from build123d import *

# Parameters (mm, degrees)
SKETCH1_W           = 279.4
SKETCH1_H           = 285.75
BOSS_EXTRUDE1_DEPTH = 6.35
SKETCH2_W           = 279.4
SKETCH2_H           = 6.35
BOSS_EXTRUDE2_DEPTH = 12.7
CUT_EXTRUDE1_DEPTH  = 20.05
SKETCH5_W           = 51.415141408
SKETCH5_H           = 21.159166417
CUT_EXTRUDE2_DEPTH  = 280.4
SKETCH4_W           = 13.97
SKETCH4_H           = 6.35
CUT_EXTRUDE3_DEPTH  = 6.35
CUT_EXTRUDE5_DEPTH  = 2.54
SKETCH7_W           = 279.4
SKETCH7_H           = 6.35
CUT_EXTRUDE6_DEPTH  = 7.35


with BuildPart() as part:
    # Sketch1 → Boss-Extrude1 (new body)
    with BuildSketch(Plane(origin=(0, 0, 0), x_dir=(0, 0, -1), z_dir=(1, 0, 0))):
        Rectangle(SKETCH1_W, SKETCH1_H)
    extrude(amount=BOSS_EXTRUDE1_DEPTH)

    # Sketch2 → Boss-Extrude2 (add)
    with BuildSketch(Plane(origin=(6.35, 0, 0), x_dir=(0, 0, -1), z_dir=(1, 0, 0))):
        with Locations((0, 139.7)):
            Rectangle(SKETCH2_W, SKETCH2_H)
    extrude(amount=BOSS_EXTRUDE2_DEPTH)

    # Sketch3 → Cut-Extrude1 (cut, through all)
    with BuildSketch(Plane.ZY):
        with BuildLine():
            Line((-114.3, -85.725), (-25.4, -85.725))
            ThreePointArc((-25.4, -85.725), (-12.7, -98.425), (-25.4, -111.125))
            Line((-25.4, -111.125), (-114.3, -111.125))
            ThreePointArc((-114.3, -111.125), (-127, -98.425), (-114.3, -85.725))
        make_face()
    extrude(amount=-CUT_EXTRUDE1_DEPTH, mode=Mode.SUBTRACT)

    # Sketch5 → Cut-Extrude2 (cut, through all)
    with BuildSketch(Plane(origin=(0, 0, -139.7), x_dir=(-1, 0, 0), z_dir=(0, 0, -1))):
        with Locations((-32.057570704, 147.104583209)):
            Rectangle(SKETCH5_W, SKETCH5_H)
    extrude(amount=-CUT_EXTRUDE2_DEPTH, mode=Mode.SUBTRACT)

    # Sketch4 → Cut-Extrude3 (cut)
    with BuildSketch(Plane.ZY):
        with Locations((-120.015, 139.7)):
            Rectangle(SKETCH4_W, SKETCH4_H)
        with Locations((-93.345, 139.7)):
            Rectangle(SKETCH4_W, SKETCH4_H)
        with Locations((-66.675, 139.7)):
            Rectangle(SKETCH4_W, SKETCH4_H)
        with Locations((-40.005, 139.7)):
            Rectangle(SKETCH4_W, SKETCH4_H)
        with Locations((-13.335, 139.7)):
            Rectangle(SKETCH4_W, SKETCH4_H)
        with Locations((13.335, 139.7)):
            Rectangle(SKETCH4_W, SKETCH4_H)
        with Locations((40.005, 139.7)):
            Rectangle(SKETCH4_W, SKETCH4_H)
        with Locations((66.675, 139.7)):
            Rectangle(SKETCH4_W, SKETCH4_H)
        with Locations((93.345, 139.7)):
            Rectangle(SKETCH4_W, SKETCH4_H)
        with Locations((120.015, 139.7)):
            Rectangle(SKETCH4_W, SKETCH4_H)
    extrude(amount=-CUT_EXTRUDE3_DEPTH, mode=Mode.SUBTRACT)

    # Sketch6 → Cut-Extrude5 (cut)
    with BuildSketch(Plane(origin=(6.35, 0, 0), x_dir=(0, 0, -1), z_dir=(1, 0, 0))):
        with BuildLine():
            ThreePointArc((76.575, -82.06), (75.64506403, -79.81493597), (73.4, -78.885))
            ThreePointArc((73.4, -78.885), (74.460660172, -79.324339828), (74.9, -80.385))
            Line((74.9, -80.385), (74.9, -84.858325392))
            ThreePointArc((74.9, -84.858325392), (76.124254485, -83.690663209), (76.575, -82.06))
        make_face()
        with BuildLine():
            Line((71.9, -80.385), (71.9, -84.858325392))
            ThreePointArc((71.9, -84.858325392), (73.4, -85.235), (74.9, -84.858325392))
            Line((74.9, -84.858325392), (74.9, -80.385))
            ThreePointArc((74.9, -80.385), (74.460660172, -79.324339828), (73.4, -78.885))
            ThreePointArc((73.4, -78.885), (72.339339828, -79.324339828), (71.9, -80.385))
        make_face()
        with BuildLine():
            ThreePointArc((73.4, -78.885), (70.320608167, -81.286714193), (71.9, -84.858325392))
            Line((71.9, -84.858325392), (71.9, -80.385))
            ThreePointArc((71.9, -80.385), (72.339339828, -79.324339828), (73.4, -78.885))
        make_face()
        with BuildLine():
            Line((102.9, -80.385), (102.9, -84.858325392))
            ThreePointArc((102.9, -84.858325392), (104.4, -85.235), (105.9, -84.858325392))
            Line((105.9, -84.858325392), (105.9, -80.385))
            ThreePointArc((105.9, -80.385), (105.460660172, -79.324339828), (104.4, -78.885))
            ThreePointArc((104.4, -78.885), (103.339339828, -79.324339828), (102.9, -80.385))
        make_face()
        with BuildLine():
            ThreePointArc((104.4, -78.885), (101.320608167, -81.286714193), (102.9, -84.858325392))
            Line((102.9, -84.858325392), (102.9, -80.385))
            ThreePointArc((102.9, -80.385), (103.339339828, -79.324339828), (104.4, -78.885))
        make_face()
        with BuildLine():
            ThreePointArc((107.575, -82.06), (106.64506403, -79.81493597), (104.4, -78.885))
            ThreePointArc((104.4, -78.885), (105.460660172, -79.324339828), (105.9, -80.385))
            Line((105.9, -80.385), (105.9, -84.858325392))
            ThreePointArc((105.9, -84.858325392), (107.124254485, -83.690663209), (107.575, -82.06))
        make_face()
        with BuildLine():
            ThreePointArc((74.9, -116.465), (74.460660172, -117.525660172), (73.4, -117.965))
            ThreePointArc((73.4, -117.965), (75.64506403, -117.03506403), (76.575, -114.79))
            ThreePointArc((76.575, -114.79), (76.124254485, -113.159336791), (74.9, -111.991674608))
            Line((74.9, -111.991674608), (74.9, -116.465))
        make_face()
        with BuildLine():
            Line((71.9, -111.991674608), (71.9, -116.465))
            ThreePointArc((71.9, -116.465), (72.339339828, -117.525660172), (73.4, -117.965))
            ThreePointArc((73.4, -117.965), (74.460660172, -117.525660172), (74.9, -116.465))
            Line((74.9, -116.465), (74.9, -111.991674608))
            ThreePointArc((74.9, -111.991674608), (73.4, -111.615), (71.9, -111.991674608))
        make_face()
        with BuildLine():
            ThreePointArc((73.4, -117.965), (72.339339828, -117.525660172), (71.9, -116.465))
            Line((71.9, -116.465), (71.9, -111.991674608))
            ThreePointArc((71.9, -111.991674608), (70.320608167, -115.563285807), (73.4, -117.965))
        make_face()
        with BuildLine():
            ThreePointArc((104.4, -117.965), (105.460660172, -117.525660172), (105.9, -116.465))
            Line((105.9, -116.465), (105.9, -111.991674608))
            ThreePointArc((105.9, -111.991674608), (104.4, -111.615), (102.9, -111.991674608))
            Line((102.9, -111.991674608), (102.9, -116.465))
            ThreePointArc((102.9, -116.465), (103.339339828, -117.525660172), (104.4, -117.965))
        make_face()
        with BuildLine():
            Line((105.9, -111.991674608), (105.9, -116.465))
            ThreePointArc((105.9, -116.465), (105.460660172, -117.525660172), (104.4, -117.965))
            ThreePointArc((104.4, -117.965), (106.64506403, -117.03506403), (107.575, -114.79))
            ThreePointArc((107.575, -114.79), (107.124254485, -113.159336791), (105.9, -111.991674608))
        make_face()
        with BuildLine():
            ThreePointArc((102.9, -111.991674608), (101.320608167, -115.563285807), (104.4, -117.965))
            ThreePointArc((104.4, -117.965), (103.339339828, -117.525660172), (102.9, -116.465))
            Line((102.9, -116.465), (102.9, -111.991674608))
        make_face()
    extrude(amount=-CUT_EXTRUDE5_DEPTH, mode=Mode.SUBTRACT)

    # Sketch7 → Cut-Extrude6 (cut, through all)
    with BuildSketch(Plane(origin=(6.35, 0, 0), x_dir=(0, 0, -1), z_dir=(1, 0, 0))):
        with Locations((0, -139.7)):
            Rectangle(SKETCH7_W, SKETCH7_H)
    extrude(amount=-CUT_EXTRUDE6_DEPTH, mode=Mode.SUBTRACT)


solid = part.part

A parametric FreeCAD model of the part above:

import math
import FreeCAD as App
import Part
import Sketcher

V = App.Vector
Q = App.Units.Quantity


def add_polygon(sketch, points):
    """Adds a closed chain of lines whose ends are joined by coincident constraints."""
    first, n = sketch.GeometryCount, len(points)
    for a, b in zip(points, points[1:] + points[:1]):
        sketch.addGeometry(Part.LineSegment(App.Vector(*a, 0), App.Vector(*b, 0)), False)
    for i in range(n):
        sketch.addConstraint(Sketcher.Constraint("Coincident", first + i, 2, first + (i + 1) % n, 1))

doc = App.newDocument("Part")
params = doc.addObject("Spreadsheet::Sheet", "Params")
for row, (alias, value) in enumerate([
    ("sketch1_height", "11 in"),
    ("sketch1_width", "11.25 in"),
    ("pad1_length", "0.25 in"),
    ("sketch2_height", "11 in"),
    ("sketch2_width", "0.25 in"),
    ("pad2_length", "0.5 in"),
    ("sketch3_radius", "0.5 in"),
    ("sketch3_height", "3.5 in"),
    ("sketch5_width", "0.25 in"),
    ("sketch5_height", "0.55 in"),
    ("pocket3_length", "0.25 in"),
    ("sketch6_radius", "0.125 in"),
    ("pocket4_length", "0.1 in"),
    ("sketch7_height", "11 in"),
    ("sketch7_width", "0.25 in"),
], start=1):
    params.set(f"A{row}", alias)
    params.set(f"B{row}", "=" + value)
    params.setAlias(f"B{row}", alias)

body = doc.addObject("PartDesign::Body", "Body")

sketch1 = doc.addObject("Sketcher::SketchObject", "Sketch")
body.addObject(sketch1)
sketch1.AttachmentSupport = (doc.YZ_Plane, [""])
sketch1.MapMode = "FlatFace"
add_polygon(sketch1, [(142.875, 139.7), (-142.875, 139.7), (-142.875, -139.7), (142.875, -139.7)])
sketch1.addConstraint(Sketcher.Constraint("Horizontal", 0))
sketch1.addConstraint(Sketcher.Constraint("Vertical", 1))
sketch1.addConstraint(Sketcher.Constraint("Horizontal", 2))
sketch1.addConstraint(Sketcher.Constraint("Vertical", 3))
sketch1.addConstraint(Sketcher.Constraint("Symmetric", 0, 2, 2, 2, -1, 1))
sketch1.addConstraint(Sketcher.Constraint("DistanceY", 1, 2, 1, 1, Q("11 in")))
sketch1.addConstraint(Sketcher.Constraint("DistanceX", 0, 2, 0, 1, Q("11.25 in")))
sketch1.setExpression("Constraints[9]", "Params.sketch1_height")
sketch1.setExpression("Constraints[10]", "Params.sketch1_width")
pad1 = doc.addObject("PartDesign::Pad", "Pad")
body.addObject(pad1)
pad1.Profile = sketch1
pad1.setExpression("Length", "Params.pad1_length")

sketch2 = doc.addObject("Sketcher::SketchObject", "Sketch001")
body.addObject(sketch2)
sketch2.AttachmentSupport = (doc.YZ_Plane, [""])
sketch2.MapMode = "FlatFace"
sketch2.AttachmentOffset = App.Placement(V(0, 0, 0.25 * 25.4), App.Rotation())
add_polygon(sketch2, [(142.875, 139.7), (136.525, 139.7), (136.525, -139.7), (142.875, -139.7)])
sketch2.addConstraint(Sketcher.Constraint("Horizontal", 0))
sketch2.addConstraint(Sketcher.Constraint("Vertical", 1))
sketch2.addConstraint(Sketcher.Constraint("Horizontal", 2))
sketch2.addConstraint(Sketcher.Constraint("Vertical", 3))
sketch2.addConstraint(Sketcher.Constraint("DistanceY", 1, 2, 1, 1, Q("11 in")))
sketch2.addConstraint(Sketcher.Constraint("DistanceX", 0, 2, 0, 1, Q("0.25 in")))
sketch2.addConstraint(Sketcher.Constraint("DistanceY", -1, 1, 0, 2, Q("5.5 in")))
sketch2.addConstraint(Sketcher.Constraint("DistanceX", -1, 1, 0, 2, Q("5.375 in")))
sketch2.setExpression("Constraints[8]", "Params.sketch2_height")
sketch2.setExpression("Constraints[9]", "Params.sketch2_width")
pad2 = doc.addObject("PartDesign::Pad", "Pad001")
body.addObject(pad2)
pad2.Profile = sketch2
pad2.setExpression("Length", "Params.pad2_length")

sketch3 = doc.addObject("Sketcher::SketchObject", "Sketch002")
body.addObject(sketch3)
sketch3.AttachmentSupport = (doc.YZ_Plane, [""])
sketch3.MapMode = "FlatFace"
sketch3.addGeometry(Part.LineSegment(V(-85.725, -25.4, 0), V(-85.725, -114.3, 0)), False)
sketch3.addGeometry(Part.ArcOfCircle(Part.Circle(V(-98.425, -114.3, 0), V(0, 0, 1), 12.7), math.radians(180), math.radians(360)), False)
sketch3.addGeometry(Part.LineSegment(V(-111.125, -114.3, 0), V(-111.125, -25.4, 0)), False)
sketch3.addGeometry(Part.ArcOfCircle(Part.Circle(V(-98.425, -25.4, 0), V(0, 0, 1), 12.7), math.radians(0), math.radians(180)), False)
sketch3.addConstraint(Sketcher.Constraint("Tangent", 0, 2, 1, 2))
sketch3.addConstraint(Sketcher.Constraint("Tangent", 1, 1, 2, 1))
sketch3.addConstraint(Sketcher.Constraint("Tangent", 2, 2, 3, 2))
sketch3.addConstraint(Sketcher.Constraint("Tangent", 3, 1, 0, 1))
sketch3.addConstraint(Sketcher.Constraint("Vertical", 0))
sketch3.addConstraint(Sketcher.Constraint("Vertical", 2))
sketch3.addConstraint(Sketcher.Constraint("Radius", 1, Q("0.5 in")))
sketch3.addConstraint(Sketcher.Constraint("DistanceY", 0, 2, 0, 1, Q("3.5 in")))
sketch3.addConstraint(Sketcher.Constraint("DistanceY", 3, 3, -1, 1, Q("1 in")))
sketch3.addConstraint(Sketcher.Constraint("DistanceX", 1, 3, -1, 1, Q("3.875 in")))
sketch3.setExpression("Constraints[6]", "Params.sketch3_radius")
sketch3.setExpression("Constraints[7]", "Params.sketch3_height")
pocket1 = doc.addObject("PartDesign::Pocket", "Pocket")
body.addObject(pocket1)
pocket1.Profile = sketch3
pocket1.Type = "ThroughAll"
pocket1.Reversed = True

sketch4 = doc.addObject("Sketcher::SketchObject", "Sketch003")
body.addObject(sketch4)
sketch4.AttachmentSupport = (doc.XY_Plane, [""])
sketch4.MapMode = "FlatFace"
sketch4.AttachmentOffset = App.Placement(V(0, 0, -5.5 * 25.4), App.Rotation())
add_polygon(sketch4, [(57.765141, 157.684166), (57.765141, 136.525), (6.35, 136.525), (6.35, 157.684166)])
sketch4.addConstraint(Sketcher.Constraint("Vertical", 0))
sketch4.addConstraint(Sketcher.Constraint("Horizontal", 1))
sketch4.addConstraint(Sketcher.Constraint("Vertical", 2))
sketch4.addConstraint(Sketcher.Constraint("Horizontal", 3))
sketch4.addConstraint(Sketcher.Constraint("DistanceX", -1, 1, 1, 2, Q("0.25 in")))
sketch4.addConstraint(Sketcher.Constraint("DistanceY", -1, 1, 0, 2, Q("5.375 in")))
sketch4.addConstraint(Sketcher.Constraint("DistanceX", 1, 2, 1, 1, 51.415141))
sketch4.addConstraint(Sketcher.Constraint("DistanceY", 0, 2, 0, 1, 21.159166))
pocket2 = doc.addObject("PartDesign::Pocket", "Pocket001")
body.addObject(pocket2)
pocket2.Profile = sketch4
pocket2.Type = "ThroughAll"
pocket2.Reversed = True

sketch5 = doc.addObject("Sketcher::SketchObject", "Sketch004")
body.addObject(sketch5)
sketch5.AttachmentSupport = (doc.YZ_Plane, [""])
sketch5.MapMode = "FlatFace"
add_polygon(sketch5, [(142.875, -127), (136.525, -127), (136.525, -113.03), (142.875, -113.03)])
add_polygon(sketch5, [(142.875, -100.33), (136.525, -100.33), (136.525, -86.36), (142.875, -86.36)])
add_polygon(sketch5, [(142.875, -73.66), (136.525, -73.66), (136.525, -59.69), (142.875, -59.69)])
add_polygon(sketch5, [(142.875, -46.99), (136.525, -46.99), (136.525, -33.02), (142.875, -33.02)])
add_polygon(sketch5, [(142.875, -20.32), (136.525, -20.32), (136.525, -6.35), (142.875, -6.35)])
add_polygon(sketch5, [(142.875, 6.35), (136.525, 6.35), (136.525, 20.32), (142.875, 20.32)])
add_polygon(sketch5, [(142.875, 33.02), (136.525, 33.02), (136.525, 46.99), (142.875, 46.99)])
add_polygon(sketch5, [(142.875, 59.69), (136.525, 59.69), (136.525, 73.66), (142.875, 73.66)])
add_polygon(sketch5, [(142.875, 86.36), (136.525, 86.36), (136.525, 100.33), (142.875, 100.33)])
add_polygon(sketch5, [(142.875, 113.03), (136.525, 113.03), (136.525, 127), (142.875, 127)])
sketch5.addConstraint(Sketcher.Constraint("Horizontal", 0))
sketch5.addConstraint(Sketcher.Constraint("Vertical", 1))
sketch5.addConstraint(Sketcher.Constraint("Horizontal", 2))
sketch5.addConstraint(Sketcher.Constraint("Vertical", 3))
sketch5.addConstraint(Sketcher.Constraint("Horizontal", 4))
sketch5.addConstraint(Sketcher.Constraint("Vertical", 5))
sketch5.addConstraint(Sketcher.Constraint("Horizontal", 6))
sketch5.addConstraint(Sketcher.Constraint("Vertical", 7))
sketch5.addConstraint(Sketcher.Constraint("Horizontal", 8))
sketch5.addConstraint(Sketcher.Constraint("Vertical", 9))
sketch5.addConstraint(Sketcher.Constraint("Horizontal", 10))
sketch5.addConstraint(Sketcher.Constraint("Vertical", 11))
sketch5.addConstraint(Sketcher.Constraint("Horizontal", 12))
sketch5.addConstraint(Sketcher.Constraint("Vertical", 13))
sketch5.addConstraint(Sketcher.Constraint("Horizontal", 14))
sketch5.addConstraint(Sketcher.Constraint("Vertical", 15))
sketch5.addConstraint(Sketcher.Constraint("Horizontal", 16))
sketch5.addConstraint(Sketcher.Constraint("Vertical", 17))
sketch5.addConstraint(Sketcher.Constraint("Horizontal", 18))
sketch5.addConstraint(Sketcher.Constraint("Vertical", 19))
sketch5.addConstraint(Sketcher.Constraint("Horizontal", 20))
sketch5.addConstraint(Sketcher.Constraint("Vertical", 21))
sketch5.addConstraint(Sketcher.Constraint("Horizontal", 22))
sketch5.addConstraint(Sketcher.Constraint("Vertical", 23))
sketch5.addConstraint(Sketcher.Constraint("Horizontal", 24))
sketch5.addConstraint(Sketcher.Constraint("Vertical", 25))
sketch5.addConstraint(Sketcher.Constraint("Horizontal", 26))
sketch5.addConstraint(Sketcher.Constraint("Vertical", 27))
sketch5.addConstraint(Sketcher.Constraint("Horizontal", 28))
sketch5.addConstraint(Sketcher.Constraint("Vertical", 29))
sketch5.addConstraint(Sketcher.Constraint("Horizontal", 30))
sketch5.addConstraint(Sketcher.Constraint("Vertical", 31))
sketch5.addConstraint(Sketcher.Constraint("Horizontal", 32))
sketch5.addConstraint(Sketcher.Constraint("Vertical", 33))
sketch5.addConstraint(Sketcher.Constraint("Horizontal", 34))
sketch5.addConstraint(Sketcher.Constraint("Vertical", 35))
sketch5.addConstraint(Sketcher.Constraint("Horizontal", 36))
sketch5.addConstraint(Sketcher.Constraint("Vertical", 37))
sketch5.addConstraint(Sketcher.Constraint("Horizontal", 38))
sketch5.addConstraint(Sketcher.Constraint("Vertical", 39))
sketch5.addConstraint(Sketcher.Constraint("Symmetric", 17, 2, 20, 2, -1))
sketch5.addConstraint(Sketcher.Constraint("Symmetric", 19, 2, 22, 2, -1))
sketch5.addConstraint(Sketcher.Constraint("Symmetric", 13, 2, 24, 2, -1))
sketch5.addConstraint(Sketcher.Constraint("Symmetric", 15, 2, 26, 2, -1))
sketch5.addConstraint(Sketcher.Constraint("Symmetric", 9, 2, 28, 2, -1))
sketch5.addConstraint(Sketcher.Constraint("Symmetric", 11, 2, 30, 2, -1))
sketch5.addConstraint(Sketcher.Constraint("Symmetric", 5, 2, 32, 2, -1))
sketch5.addConstraint(Sketcher.Constraint("Symmetric", 7, 2, 34, 2, -1))
sketch5.addConstraint(Sketcher.Constraint("Symmetric", 1, 2, 36, 2, -1))
sketch5.addConstraint(Sketcher.Constraint("Symmetric", 3, 2, 38, 2, -1))
sketch5.addConstraint(Sketcher.Constraint("Vertical", 1, 2, 4, 2))
sketch5.addConstraint(Sketcher.Constraint("Vertical", 3, 2, 6, 2))
sketch5.addConstraint(Sketcher.Constraint("Vertical", 5, 2, 8, 2))
sketch5.addConstraint(Sketcher.Constraint("Vertical", 7, 2, 10, 2))
sketch5.addConstraint(Sketcher.Constraint("Vertical", 9, 2, 12, 2))
sketch5.addConstraint(Sketcher.Constraint("Vertical", 11, 2, 14, 2))
sketch5.addConstraint(Sketcher.Constraint("Vertical", 13, 2, 16, 2))
sketch5.addConstraint(Sketcher.Constraint("Vertical", 15, 2, 18, 2))
sketch5.addConstraint(Sketcher.Constraint("Equal", 3, 5))
sketch5.addConstraint(Sketcher.Constraint("Equal", 7, 9))
sketch5.addConstraint(Sketcher.Constraint("Equal", 11, 13))
sketch5.addConstraint(Sketcher.Constraint("Equal", 15, 17))
sketch5.addConstraint(Sketcher.Constraint("DistanceY", 0, 2, -1, 1, Q("5 in")))
sketch5.addConstraint(Sketcher.Constraint("DistanceX", 0, 2, 0, 1, Q("0.25 in")))
sketch5.addConstraint(Sketcher.Constraint("DistanceY", 1, 1, 1, 2, Q("0.55 in")))
sketch5.addConstraint(Sketcher.Constraint("DistanceY", 5, 2, -1, 1, Q("3.4 in")))
sketch5.addConstraint(Sketcher.Constraint("DistanceY", 8, 2, -1, 1, Q("2.9 in")))
sketch5.addConstraint(Sketcher.Constraint("DistanceY", 13, 2, -1, 1, Q("1.3 in")))
sketch5.addConstraint(Sketcher.Constraint("DistanceY", 16, 2, -1, 1, Q("0.8 in")))
sketch5.addConstraint(Sketcher.Constraint("DistanceX", -1, 1, 0, 2, Q("5.375 in")))
sketch5.setExpression("Constraints[103]", "Params.sketch5_width")
sketch5.setExpression("Constraints[104]", "Params.sketch5_height")
pocket3 = doc.addObject("PartDesign::Pocket", "Pocket002")
body.addObject(pocket3)
pocket3.Profile = sketch5
pocket3.setExpression("Length", "Params.pocket3_length")
pocket3.Reversed = True

sketch6 = doc.addObject("Sketcher::SketchObject", "Sketch005")
body.addObject(sketch6)
sketch6.AttachmentSupport = (doc.YZ_Plane, [""])
sketch6.MapMode = "FlatFace"
sketch6.AttachmentOffset = App.Placement(V(0, 0, 0.25 * 25.4), App.Rotation())
sketch6.addGeometry(Part.ArcOfCircle(Part.Circle(V(-82.06, -73.4, 0), V(0, 0, 1), 3.175), math.radians(-90), math.radians(0)), False)
sketch6.addGeometry(Part.ArcOfCircle(Part.Circle(V(-82.06, -73.4, 0), V(0, 0, 1), 3.175), math.radians(0), math.radians(151.807139)), False)
sketch6.addGeometry(Part.ArcOfCircle(Part.Circle(V(-82.06, -73.4, 0), V(0, 0, 1), 3.175), math.radians(151.807139), math.radians(208.192861)), False)
sketch6.addGeometry(Part.ArcOfCircle(Part.Circle(V(-82.06, -73.4, 0), V(0, 0, 1), 3.175), math.radians(-151.807139), math.radians(-90)), False)
sketch6.addGeometry(Part.ArcOfCircle(Part.Circle(V(-82.06, -104.4, 0), V(0, 0, 1), 3.175), math.radians(151.807139), math.radians(208.192861)), False)
sketch6.addGeometry(Part.ArcOfCircle(Part.Circle(V(-82.06, -104.4, 0), V(0, 0, 1), 3.175), math.radians(-151.807139), math.radians(-90)), False)
sketch6.addGeometry(Part.ArcOfCircle(Part.Circle(V(-82.06, -104.4, 0), V(0, 0, 1), 3.175), math.radians(-90), math.radians(0)), False)
sketch6.addGeometry(Part.ArcOfCircle(Part.Circle(V(-82.06, -104.4, 0), V(0, 0, 1), 3.175), math.radians(0), math.radians(151.807139)), False)
sketch6.addGeometry(Part.ArcOfCircle(Part.Circle(V(-114.79, -73.4, 0), V(0, 0, 1), 3.175), math.radians(-180), math.radians(-90)), False)
sketch6.addGeometry(Part.ArcOfCircle(Part.Circle(V(-114.79, -73.4, 0), V(0, 0, 1), 3.175), math.radians(-90), math.radians(-28.192861)), False)
sketch6.addGeometry(Part.ArcOfCircle(Part.Circle(V(-114.79, -73.4, 0), V(0, 0, 1), 3.175), math.radians(-28.192861), math.radians(28.192861)), False)
sketch6.addGeometry(Part.ArcOfCircle(Part.Circle(V(-114.79, -73.4, 0), V(0, 0, 1), 3.175), math.radians(28.192861), math.radians(180)), False)
sketch6.addGeometry(Part.ArcOfCircle(Part.Circle(V(-114.79, -104.4, 0), V(0, 0, 1), 3.175), math.radians(-28.192861), math.radians(28.192861)), False)
sketch6.addGeometry(Part.ArcOfCircle(Part.Circle(V(-114.79, -104.4, 0), V(0, 0, 1), 3.175), math.radians(28.192861), math.radians(180)), False)
sketch6.addGeometry(Part.ArcOfCircle(Part.Circle(V(-114.79, -104.4, 0), V(0, 0, 1), 3.175), math.radians(-180), math.radians(-90)), False)
sketch6.addGeometry(Part.ArcOfCircle(Part.Circle(V(-114.79, -104.4, 0), V(0, 0, 1), 3.175), math.radians(-90), math.radians(-28.192861)), False)
sketch6.addConstraint(Sketcher.Constraint("Tangent", 0, 2, 1, 1))
sketch6.addConstraint(Sketcher.Constraint("Tangent", 1, 2, 2, 1))
sketch6.addConstraint(Sketcher.Constraint("Tangent", 2, 2, 3, 1))
sketch6.addConstraint(Sketcher.Constraint("Tangent", 3, 2, 0, 1))
sketch6.addConstraint(Sketcher.Constraint("Tangent", 4, 2, 5, 1))
sketch6.addConstraint(Sketcher.Constraint("Tangent", 5, 2, 6, 1))
sketch6.addConstraint(Sketcher.Constraint("Tangent", 6, 2, 7, 1))
sketch6.addConstraint(Sketcher.Constraint("Tangent", 7, 2, 4, 1))
sketch6.addConstraint(Sketcher.Constraint("Tangent", 8, 2, 9, 1))
sketch6.addConstraint(Sketcher.Constraint("Tangent", 9, 2, 10, 1))
sketch6.addConstraint(Sketcher.Constraint("Tangent", 10, 2, 11, 1))
sketch6.addConstraint(Sketcher.Constraint("Tangent", 11, 2, 8, 1))
sketch6.addConstraint(Sketcher.Constraint("Tangent", 12, 2, 13, 1))
sketch6.addConstraint(Sketcher.Constraint("Tangent", 13, 2, 14, 1))
sketch6.addConstraint(Sketcher.Constraint("Tangent", 14, 2, 15, 1))
sketch6.addConstraint(Sketcher.Constraint("Tangent", 15, 2, 12, 1))
sketch6.addConstraint(Sketcher.Constraint("Equal", 0, 1))
sketch6.addConstraint(Sketcher.Constraint("Equal", 3, 4))
sketch6.addConstraint(Sketcher.Constraint("Equal", 4, 5))
sketch6.addConstraint(Sketcher.Constraint("Equal", 7, 8))
sketch6.addConstraint(Sketcher.Constraint("Equal", 8, 9))
sketch6.addConstraint(Sketcher.Constraint("Equal", 11, 12))
sketch6.addConstraint(Sketcher.Constraint("Equal", 12, 13))
sketch6.addConstraint(Sketcher.Constraint("Horizontal", 3, 3, 8, 3))
sketch6.addConstraint(Sketcher.Constraint("Horizontal", 7, 3, 12, 3))
sketch6.addConstraint(Sketcher.Constraint("Horizontal", 11, 3, 0, 2))
sketch6.addConstraint(Sketcher.Constraint("Horizontal", 15, 3, 6, 2))
sketch6.addConstraint(Sketcher.Constraint("Horizontal", 2, 2, 9, 2))
sketch6.addConstraint(Sketcher.Constraint("Horizontal", 1, 2, 10, 2))
sketch6.addConstraint(Sketcher.Constraint("Horizontal", 0, 2, 11, 2))
sketch6.addConstraint(Sketcher.Constraint("Horizontal", 7, 2, 12, 2))
sketch6.addConstraint(Sketcher.Constraint("Horizontal", 6, 2, 13, 2))
sketch6.addConstraint(Sketcher.Constraint("Horizontal", 4, 2, 15, 2))
sketch6.addConstraint(Sketcher.Constraint("Vertical", 3, 3, 4, 3))
sketch6.addConstraint(Sketcher.Constraint("Vertical", 11, 3, 12, 3))
sketch6.addConstraint(Sketcher.Constraint("Vertical", 1, 2, 2, 2))
sketch6.addConstraint(Sketcher.Constraint("Vertical", 7, 3, 3, 2))
sketch6.addConstraint(Sketcher.Constraint("Vertical", 2, 2, 4, 2))
sketch6.addConstraint(Sketcher.Constraint("Vertical", 3, 2, 5, 2))
sketch6.addConstraint(Sketcher.Constraint("Vertical", 4, 2, 7, 2))
sketch6.addConstraint(Sketcher.Constraint("Vertical", 15, 3, 8, 2))
sketch6.addConstraint(Sketcher.Constraint("Vertical", 8, 2, 14, 2))
sketch6.addConstraint(Sketcher.Constraint("Radius", 0, Q("0.125 in")))
sketch6.addConstraint(Sketcher.Constraint("DistanceX", 0, 3, -1, 1, 82.06))
sketch6.addConstraint(Sketcher.Constraint("DistanceY", 0, 3, -1, 1, 73.4))
sketch6.addConstraint(Sketcher.Constraint("DistanceY", 4, 3, -1, 1, 104.4))
sketch6.addConstraint(Sketcher.Constraint("DistanceX", 8, 3, -1, 1, 114.79))
sketch6.addConstraint(Sketcher.Constraint("DistanceY", 1, 2, -1, 1, 71.9))
sketch6.setExpression("Constraints[42]", "Params.sketch6_radius")
pocket4 = doc.addObject("PartDesign::Pocket", "Pocket003")
body.addObject(pocket4)
pocket4.Profile = sketch6
pocket4.setExpression("Length", "Params.pocket4_length")

sketch7 = doc.addObject("Sketcher::SketchObject", "Sketch006")
body.addObject(sketch7)
sketch7.AttachmentSupport = (doc.YZ_Plane, [""])
sketch7.MapMode = "FlatFace"
sketch7.AttachmentOffset = App.Placement(V(0, 0, 0.25 * 25.4), App.Rotation())
add_polygon(sketch7, [(-136.525, 139.7), (-142.875, 139.7), (-142.875, -139.7), (-136.525, -139.7)])
sketch7.addConstraint(Sketcher.Constraint("Horizontal", 0))
sketch7.addConstraint(Sketcher.Constraint("Vertical", 1))
sketch7.addConstraint(Sketcher.Constraint("Horizontal", 2))
sketch7.addConstraint(Sketcher.Constraint("Vertical", 3))
sketch7.addConstraint(Sketcher.Constraint("DistanceY", 1, 2, 1, 1, Q("11 in")))
sketch7.addConstraint(Sketcher.Constraint("DistanceX", 0, 2, 0, 1, Q("0.25 in")))
sketch7.addConstraint(Sketcher.Constraint("DistanceY", -1, 1, 0, 2, Q("5.5 in")))
sketch7.addConstraint(Sketcher.Constraint("DistanceX", 0, 2, -1, 1, Q("5.625 in")))
sketch7.setExpression("Constraints[8]", "Params.sketch7_height")
sketch7.setExpression("Constraints[9]", "Params.sketch7_width")
pocket5 = doc.addObject("PartDesign::Pocket", "Pocket004")
body.addObject(pocket5)
pocket5.Profile = sketch7
pocket5.Type = "ThroughAll"

doc.recompute()
